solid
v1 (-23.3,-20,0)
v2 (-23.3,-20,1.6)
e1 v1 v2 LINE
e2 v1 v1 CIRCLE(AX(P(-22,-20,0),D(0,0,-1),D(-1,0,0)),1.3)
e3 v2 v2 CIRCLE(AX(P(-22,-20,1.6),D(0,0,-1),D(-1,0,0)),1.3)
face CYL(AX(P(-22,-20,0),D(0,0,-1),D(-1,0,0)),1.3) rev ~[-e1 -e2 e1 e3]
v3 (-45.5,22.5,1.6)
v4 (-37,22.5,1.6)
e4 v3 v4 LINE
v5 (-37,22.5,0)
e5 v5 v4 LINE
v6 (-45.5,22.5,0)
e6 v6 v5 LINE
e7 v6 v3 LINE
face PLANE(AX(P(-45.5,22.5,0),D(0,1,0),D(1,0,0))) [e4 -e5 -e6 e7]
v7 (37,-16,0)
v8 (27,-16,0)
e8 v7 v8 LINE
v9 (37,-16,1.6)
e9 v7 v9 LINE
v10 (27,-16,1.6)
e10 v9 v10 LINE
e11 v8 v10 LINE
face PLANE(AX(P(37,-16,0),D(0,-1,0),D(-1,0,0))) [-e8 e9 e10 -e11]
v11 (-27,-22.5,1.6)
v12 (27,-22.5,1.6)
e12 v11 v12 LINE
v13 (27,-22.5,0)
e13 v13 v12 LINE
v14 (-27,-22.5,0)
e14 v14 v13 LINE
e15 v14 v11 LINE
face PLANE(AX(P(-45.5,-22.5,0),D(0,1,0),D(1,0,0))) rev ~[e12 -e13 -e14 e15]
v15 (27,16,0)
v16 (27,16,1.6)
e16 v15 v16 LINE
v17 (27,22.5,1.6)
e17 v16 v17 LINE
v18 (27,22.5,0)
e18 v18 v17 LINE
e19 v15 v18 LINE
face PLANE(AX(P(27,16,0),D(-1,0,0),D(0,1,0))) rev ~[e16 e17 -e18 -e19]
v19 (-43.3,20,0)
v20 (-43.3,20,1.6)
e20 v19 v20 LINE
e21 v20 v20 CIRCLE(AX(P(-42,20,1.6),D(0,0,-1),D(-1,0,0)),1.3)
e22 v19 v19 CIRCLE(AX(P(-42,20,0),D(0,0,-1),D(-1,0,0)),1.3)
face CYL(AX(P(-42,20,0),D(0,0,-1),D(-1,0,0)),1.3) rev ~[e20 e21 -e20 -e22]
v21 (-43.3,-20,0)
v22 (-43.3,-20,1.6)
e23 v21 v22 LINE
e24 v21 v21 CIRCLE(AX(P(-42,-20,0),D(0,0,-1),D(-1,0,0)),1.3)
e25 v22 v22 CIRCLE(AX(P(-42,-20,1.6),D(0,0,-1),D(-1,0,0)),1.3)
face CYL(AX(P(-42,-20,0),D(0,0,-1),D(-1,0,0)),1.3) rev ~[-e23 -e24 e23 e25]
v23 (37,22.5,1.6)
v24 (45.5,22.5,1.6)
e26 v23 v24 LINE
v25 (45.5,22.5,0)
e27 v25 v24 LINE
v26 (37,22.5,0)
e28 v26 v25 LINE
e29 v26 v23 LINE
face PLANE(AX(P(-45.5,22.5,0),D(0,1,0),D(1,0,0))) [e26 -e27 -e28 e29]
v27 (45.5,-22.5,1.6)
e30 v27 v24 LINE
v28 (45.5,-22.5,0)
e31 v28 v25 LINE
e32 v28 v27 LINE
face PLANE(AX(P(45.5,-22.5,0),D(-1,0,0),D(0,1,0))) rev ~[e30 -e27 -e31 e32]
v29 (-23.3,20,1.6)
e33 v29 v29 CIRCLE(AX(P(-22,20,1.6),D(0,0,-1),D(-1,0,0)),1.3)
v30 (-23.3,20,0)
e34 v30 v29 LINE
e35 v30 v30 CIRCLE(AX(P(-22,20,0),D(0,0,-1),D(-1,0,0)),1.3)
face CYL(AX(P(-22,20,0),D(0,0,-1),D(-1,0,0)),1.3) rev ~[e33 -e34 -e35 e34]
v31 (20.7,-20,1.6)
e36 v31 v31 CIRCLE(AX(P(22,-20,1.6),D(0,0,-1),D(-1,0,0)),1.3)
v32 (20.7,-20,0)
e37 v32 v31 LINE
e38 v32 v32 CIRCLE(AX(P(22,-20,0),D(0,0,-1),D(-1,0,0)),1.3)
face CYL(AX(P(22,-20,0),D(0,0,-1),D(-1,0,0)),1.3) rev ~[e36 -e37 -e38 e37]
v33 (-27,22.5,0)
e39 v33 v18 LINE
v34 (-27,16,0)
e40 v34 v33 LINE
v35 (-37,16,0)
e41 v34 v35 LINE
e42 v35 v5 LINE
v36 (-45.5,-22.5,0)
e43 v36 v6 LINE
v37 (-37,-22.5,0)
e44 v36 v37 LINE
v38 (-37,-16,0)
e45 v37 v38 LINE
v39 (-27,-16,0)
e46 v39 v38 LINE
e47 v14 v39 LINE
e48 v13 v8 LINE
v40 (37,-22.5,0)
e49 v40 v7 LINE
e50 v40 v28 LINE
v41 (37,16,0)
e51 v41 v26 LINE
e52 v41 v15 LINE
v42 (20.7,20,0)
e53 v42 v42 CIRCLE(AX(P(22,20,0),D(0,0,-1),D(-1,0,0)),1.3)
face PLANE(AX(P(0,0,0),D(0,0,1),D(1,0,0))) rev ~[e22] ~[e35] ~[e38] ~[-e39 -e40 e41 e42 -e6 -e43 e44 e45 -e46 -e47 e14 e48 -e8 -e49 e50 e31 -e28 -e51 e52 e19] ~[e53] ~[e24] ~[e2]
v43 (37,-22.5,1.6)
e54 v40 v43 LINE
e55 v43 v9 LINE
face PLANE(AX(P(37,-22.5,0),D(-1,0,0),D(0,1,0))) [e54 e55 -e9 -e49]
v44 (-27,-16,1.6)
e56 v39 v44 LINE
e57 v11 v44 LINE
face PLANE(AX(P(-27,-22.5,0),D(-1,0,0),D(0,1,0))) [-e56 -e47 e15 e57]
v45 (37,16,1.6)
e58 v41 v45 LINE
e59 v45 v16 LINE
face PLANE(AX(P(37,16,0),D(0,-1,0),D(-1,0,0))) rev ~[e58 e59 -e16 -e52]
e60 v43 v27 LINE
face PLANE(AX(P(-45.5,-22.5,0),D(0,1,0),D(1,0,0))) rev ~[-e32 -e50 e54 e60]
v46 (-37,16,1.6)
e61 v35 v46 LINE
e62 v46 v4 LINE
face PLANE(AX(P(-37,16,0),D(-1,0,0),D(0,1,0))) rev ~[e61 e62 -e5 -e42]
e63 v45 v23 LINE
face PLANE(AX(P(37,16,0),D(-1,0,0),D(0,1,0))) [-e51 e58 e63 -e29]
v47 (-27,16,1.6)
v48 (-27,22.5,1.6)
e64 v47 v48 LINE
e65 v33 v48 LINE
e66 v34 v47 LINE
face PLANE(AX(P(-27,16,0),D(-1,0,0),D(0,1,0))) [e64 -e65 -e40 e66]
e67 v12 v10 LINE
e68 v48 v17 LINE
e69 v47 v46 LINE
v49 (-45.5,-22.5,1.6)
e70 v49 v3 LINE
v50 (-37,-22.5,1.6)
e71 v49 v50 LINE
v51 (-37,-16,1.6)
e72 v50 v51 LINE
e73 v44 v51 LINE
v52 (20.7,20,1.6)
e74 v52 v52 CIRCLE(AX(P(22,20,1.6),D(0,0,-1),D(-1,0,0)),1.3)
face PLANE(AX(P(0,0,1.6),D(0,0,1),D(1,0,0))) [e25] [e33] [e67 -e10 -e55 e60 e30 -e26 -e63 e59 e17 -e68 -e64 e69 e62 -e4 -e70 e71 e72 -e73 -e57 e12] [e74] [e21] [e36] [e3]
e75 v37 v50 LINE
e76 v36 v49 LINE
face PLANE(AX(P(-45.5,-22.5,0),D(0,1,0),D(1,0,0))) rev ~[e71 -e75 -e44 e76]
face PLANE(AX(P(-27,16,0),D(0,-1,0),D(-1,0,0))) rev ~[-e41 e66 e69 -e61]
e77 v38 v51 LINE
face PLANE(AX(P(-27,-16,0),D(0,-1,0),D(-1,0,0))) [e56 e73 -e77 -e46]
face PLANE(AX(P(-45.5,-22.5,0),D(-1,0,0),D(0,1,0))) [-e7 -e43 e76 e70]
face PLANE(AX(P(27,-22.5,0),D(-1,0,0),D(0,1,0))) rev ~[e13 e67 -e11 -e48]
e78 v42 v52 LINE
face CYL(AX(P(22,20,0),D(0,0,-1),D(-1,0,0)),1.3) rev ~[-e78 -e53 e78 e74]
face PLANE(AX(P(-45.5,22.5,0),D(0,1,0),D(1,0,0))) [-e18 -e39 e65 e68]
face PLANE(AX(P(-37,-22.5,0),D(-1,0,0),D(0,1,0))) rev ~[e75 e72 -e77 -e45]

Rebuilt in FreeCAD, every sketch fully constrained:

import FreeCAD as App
import Part
import Sketcher

V = App.Vector
Q = App.Units.Quantity


def add_polygon(sketch, points):
    """Adds a closed chain of lines whose ends are joined by coincident constraints."""
    first, n = sketch.GeometryCount, len(points)
    for a, b in zip(points, points[1:] + points[:1]):
        sketch.addGeometry(Part.LineSegment(App.Vector(*a, 0), App.Vector(*b, 0)), False)
    for i in range(n):
        sketch.addConstraint(Sketcher.Constraint("Coincident", first + i, 2, first + (i + 1) % n, 1))

doc = App.newDocument("Part")
params = doc.addObject("Spreadsheet::Sheet", "Params")
for row, (alias, value) in enumerate([
    ("sketch1_width", "91 mm"),
    ("sketch1_height", "45 mm"),
    ("pad1_length", "1.6 mm"),
    ("sketch2_diameter", "2.6 mm"),
    ("pocket1_length", "1.6 mm"),
    ("sketch3_width", "10 mm"),
    ("sketch3_height", "6.5 mm"),
    ("pocket2_length", "1.6 mm"),
], start=1):
    params.set(f"A{row}", alias)
    params.set(f"B{row}", "=" + value)
    params.setAlias(f"B{row}", alias)

body = doc.addObject("PartDesign::Body", "Body")

# Sketch on XY plane
sketch1 = body.newObject("Sketcher::SketchObject", "Sketch")
sketch1.AttachmentSupport = (doc.getObject("XY_Plane"), [""])
sketch1.MapMode = "FlatFace"
add_polygon(sketch1, [(-46, 22), (-46, -22), (46, -22), (46, 22)])  # lines 0-3
sketch1.addConstraint([
    Sketcher.Constraint("Vertical", 0),
    Sketcher.Constraint("Horizontal", 1),
    Sketcher.Constraint("Vertical", 2),
    Sketcher.Constraint("Horizontal", 3),
    Sketcher.Constraint("Symmetric", 0, 2, 2, 2, -1, 1),
    Sketcher.Constraint("DistanceX", 1, 1, 1, 2, Q("91 mm")),
    Sketcher.Constraint("DistanceY", 0, 2, 0, 1, Q("45 mm")),
])
sketch1.setExpression("Constraints[9]", "Params.sketch1_width")
sketch1.setExpression("Constraints[10]", "Params.sketch1_height")
pad1 = body.newObject("PartDesign::Pad", "Pad")
pad1.Profile = sketch1
pad1.setExpression("Length", "Params.pad1_length")

# Sketch on XY plane
sketch2 = body.newObject("Sketcher::SketchObject", "Sketch001")
sketch2.AttachmentSupport = (doc.getObject("XY_Plane"), [""])
sketch2.MapMode = "FlatFace"
sketch2.addGeometry([
    Part.Circle(V(-22, 20, 0), V(0, 0, 1), 1.3),  # 0
    Part.Circle(V(22, 20, 0), V(0, 0, 1), 1.3),  # 1
    Part.Circle(V(-42, 20, 0), V(0, 0, 1), 1.3),  # 2
    Part.Circle(V(-42, -20, 0), V(0, 0, 1), 1.3),  # 3
    Part.Circle(V(-22, -20, 0), V(0, 0, 1), 1.3),  # 4
    Part.Circle(V(22, -20, 0), V(0, 0, 1), 1.3),  # 5
], False)
sketch2.addConstraint([
    Sketcher.Constraint("Equal", 0, 1),
    Sketcher.Constraint("Equal", 1, 2),
    Sketcher.Constraint("Equal", 2, 3),
    Sketcher.Constraint("Equal", 3, 4),
    Sketcher.Constraint("Equal", 4, 5),
    Sketcher.Constraint("Symmetric", 1, 3, 4, 3, -1, 1),
    Sketcher.Constraint("Symmetric", 0, 3, 5, 3, -1, 1),
    Sketcher.Constraint("Symmetric", 0, 3, 1, 3, -2),
    Sketcher.Constraint("Symmetric", 2, 3, 3, 3, -1),
    Sketcher.Constraint("Horizontal", 1, 3, 2, 3),
    Sketcher.Constraint("Diameter", 0, Q("2.6 mm")),
    Sketcher.Constraint("DistanceX", 0, 3, -1, 1, Q("22 mm")),
    Sketcher.Constraint("DistanceY", -1, 1, 0, 3, Q("20 mm")),
    Sketcher.Constraint("DistanceX", 2, 3, -1, 1, Q("42 mm")),
])
sketch2.setExpression("Constraints[10]", "Params.sketch2_diameter")
pocket1 = body.newObject("PartDesign::Pocket", "Pocket")
pocket1.Profile = sketch2
pocket1.setExpression("Length", "Params.pocket1_length")
pocket1.Reversed = True

# Sketch on XY plane
sketch3 = body.newObject("Sketcher::SketchObject", "Sketch002")
sketch3.AttachmentSupport = (doc.getObject("XY_Plane"), [""])
sketch3.MapMode = "FlatFace"
add_polygon(sketch3, [(37, 22), (37, 16), (27, 16), (27, 22)])  # lines 0-3
add_polygon(sketch3, [(-27, 22), (-27, 16), (-37, 16), (-37, 22)])  # lines 4-7
add_polygon(sketch3, [(-27, -16), (-27, -22), (-37, -22), (-37, -16)])  # lines 8-11
add_polygon(sketch3, [(37, -16), (37, -22), (27, -22), (27, -16)])  # lines 12-15
sketch3.addConstraint([
    Sketcher.Constraint("Vertical", 0),
    Sketcher.Constraint("Horizontal", 1),
    Sketcher.Constraint("Vertical", 2),
    Sketcher.Constraint("Horizontal", 3),
    Sketcher.Constraint("Vertical", 4),
    Sketcher.Constraint("Horizontal", 5),
    Sketcher.Constraint("Vertical", 6),
    Sketcher.Constraint("Horizontal", 7),
    Sketcher.Constraint("Vertical", 8),
    Sketcher.Constraint("Horizontal", 9),
    Sketcher.Constraint("Vertical", 10),
    Sketcher.Constraint("Horizontal", 11),
    Sketcher.Constraint("Vertical", 12),
    Sketcher.Constraint("Horizontal", 13),
    Sketcher.Constraint("Vertical", 14),
    Sketcher.Constraint("Horizontal", 15),
    Sketcher.Constraint("Symmetric", 2, 2, 8, 2, -1, 1),
    Sketcher.Constraint("Symmetric", 0, 2, 10, 2, -1, 1),
    Sketcher.Constraint("Symmetric", 6, 2, 12, 2, -1, 1),
    Sketcher.Constraint("Symmetric", 4, 2, 14, 2, -1, 1),
    Sketcher.Constraint("Symmetric", 1, 2, 4, 2, -2),
    Sketcher.Constraint("Symmetric", 3, 2, 6, 2, -2),
    Sketcher.Constraint("DistanceX", 1, 2, 1, 1, Q("10 mm")),
    Sketcher.Constraint("DistanceY", 0, 2, 0, 1, Q("6.5 mm")),
    Sketcher.Constraint("DistanceX", -1, 1, 0, 2, Q("37 mm")),
    Sketcher.Constraint("DistanceY", -1, 1, 0, 2, Q("16 mm")),
])
sketch3.setExpression("Constraints[38]", "Params.sketch3_width")
sketch3.setExpression("Constraints[39]", "Params.sketch3_height")
pocket2 = body.newObject("PartDesign::Pocket", "Pocket001")
pocket2.Profile = sketch3
pocket2.setExpression("Length", "Params.pocket2_length")
pocket2.Reversed = True

doc.recompute()
